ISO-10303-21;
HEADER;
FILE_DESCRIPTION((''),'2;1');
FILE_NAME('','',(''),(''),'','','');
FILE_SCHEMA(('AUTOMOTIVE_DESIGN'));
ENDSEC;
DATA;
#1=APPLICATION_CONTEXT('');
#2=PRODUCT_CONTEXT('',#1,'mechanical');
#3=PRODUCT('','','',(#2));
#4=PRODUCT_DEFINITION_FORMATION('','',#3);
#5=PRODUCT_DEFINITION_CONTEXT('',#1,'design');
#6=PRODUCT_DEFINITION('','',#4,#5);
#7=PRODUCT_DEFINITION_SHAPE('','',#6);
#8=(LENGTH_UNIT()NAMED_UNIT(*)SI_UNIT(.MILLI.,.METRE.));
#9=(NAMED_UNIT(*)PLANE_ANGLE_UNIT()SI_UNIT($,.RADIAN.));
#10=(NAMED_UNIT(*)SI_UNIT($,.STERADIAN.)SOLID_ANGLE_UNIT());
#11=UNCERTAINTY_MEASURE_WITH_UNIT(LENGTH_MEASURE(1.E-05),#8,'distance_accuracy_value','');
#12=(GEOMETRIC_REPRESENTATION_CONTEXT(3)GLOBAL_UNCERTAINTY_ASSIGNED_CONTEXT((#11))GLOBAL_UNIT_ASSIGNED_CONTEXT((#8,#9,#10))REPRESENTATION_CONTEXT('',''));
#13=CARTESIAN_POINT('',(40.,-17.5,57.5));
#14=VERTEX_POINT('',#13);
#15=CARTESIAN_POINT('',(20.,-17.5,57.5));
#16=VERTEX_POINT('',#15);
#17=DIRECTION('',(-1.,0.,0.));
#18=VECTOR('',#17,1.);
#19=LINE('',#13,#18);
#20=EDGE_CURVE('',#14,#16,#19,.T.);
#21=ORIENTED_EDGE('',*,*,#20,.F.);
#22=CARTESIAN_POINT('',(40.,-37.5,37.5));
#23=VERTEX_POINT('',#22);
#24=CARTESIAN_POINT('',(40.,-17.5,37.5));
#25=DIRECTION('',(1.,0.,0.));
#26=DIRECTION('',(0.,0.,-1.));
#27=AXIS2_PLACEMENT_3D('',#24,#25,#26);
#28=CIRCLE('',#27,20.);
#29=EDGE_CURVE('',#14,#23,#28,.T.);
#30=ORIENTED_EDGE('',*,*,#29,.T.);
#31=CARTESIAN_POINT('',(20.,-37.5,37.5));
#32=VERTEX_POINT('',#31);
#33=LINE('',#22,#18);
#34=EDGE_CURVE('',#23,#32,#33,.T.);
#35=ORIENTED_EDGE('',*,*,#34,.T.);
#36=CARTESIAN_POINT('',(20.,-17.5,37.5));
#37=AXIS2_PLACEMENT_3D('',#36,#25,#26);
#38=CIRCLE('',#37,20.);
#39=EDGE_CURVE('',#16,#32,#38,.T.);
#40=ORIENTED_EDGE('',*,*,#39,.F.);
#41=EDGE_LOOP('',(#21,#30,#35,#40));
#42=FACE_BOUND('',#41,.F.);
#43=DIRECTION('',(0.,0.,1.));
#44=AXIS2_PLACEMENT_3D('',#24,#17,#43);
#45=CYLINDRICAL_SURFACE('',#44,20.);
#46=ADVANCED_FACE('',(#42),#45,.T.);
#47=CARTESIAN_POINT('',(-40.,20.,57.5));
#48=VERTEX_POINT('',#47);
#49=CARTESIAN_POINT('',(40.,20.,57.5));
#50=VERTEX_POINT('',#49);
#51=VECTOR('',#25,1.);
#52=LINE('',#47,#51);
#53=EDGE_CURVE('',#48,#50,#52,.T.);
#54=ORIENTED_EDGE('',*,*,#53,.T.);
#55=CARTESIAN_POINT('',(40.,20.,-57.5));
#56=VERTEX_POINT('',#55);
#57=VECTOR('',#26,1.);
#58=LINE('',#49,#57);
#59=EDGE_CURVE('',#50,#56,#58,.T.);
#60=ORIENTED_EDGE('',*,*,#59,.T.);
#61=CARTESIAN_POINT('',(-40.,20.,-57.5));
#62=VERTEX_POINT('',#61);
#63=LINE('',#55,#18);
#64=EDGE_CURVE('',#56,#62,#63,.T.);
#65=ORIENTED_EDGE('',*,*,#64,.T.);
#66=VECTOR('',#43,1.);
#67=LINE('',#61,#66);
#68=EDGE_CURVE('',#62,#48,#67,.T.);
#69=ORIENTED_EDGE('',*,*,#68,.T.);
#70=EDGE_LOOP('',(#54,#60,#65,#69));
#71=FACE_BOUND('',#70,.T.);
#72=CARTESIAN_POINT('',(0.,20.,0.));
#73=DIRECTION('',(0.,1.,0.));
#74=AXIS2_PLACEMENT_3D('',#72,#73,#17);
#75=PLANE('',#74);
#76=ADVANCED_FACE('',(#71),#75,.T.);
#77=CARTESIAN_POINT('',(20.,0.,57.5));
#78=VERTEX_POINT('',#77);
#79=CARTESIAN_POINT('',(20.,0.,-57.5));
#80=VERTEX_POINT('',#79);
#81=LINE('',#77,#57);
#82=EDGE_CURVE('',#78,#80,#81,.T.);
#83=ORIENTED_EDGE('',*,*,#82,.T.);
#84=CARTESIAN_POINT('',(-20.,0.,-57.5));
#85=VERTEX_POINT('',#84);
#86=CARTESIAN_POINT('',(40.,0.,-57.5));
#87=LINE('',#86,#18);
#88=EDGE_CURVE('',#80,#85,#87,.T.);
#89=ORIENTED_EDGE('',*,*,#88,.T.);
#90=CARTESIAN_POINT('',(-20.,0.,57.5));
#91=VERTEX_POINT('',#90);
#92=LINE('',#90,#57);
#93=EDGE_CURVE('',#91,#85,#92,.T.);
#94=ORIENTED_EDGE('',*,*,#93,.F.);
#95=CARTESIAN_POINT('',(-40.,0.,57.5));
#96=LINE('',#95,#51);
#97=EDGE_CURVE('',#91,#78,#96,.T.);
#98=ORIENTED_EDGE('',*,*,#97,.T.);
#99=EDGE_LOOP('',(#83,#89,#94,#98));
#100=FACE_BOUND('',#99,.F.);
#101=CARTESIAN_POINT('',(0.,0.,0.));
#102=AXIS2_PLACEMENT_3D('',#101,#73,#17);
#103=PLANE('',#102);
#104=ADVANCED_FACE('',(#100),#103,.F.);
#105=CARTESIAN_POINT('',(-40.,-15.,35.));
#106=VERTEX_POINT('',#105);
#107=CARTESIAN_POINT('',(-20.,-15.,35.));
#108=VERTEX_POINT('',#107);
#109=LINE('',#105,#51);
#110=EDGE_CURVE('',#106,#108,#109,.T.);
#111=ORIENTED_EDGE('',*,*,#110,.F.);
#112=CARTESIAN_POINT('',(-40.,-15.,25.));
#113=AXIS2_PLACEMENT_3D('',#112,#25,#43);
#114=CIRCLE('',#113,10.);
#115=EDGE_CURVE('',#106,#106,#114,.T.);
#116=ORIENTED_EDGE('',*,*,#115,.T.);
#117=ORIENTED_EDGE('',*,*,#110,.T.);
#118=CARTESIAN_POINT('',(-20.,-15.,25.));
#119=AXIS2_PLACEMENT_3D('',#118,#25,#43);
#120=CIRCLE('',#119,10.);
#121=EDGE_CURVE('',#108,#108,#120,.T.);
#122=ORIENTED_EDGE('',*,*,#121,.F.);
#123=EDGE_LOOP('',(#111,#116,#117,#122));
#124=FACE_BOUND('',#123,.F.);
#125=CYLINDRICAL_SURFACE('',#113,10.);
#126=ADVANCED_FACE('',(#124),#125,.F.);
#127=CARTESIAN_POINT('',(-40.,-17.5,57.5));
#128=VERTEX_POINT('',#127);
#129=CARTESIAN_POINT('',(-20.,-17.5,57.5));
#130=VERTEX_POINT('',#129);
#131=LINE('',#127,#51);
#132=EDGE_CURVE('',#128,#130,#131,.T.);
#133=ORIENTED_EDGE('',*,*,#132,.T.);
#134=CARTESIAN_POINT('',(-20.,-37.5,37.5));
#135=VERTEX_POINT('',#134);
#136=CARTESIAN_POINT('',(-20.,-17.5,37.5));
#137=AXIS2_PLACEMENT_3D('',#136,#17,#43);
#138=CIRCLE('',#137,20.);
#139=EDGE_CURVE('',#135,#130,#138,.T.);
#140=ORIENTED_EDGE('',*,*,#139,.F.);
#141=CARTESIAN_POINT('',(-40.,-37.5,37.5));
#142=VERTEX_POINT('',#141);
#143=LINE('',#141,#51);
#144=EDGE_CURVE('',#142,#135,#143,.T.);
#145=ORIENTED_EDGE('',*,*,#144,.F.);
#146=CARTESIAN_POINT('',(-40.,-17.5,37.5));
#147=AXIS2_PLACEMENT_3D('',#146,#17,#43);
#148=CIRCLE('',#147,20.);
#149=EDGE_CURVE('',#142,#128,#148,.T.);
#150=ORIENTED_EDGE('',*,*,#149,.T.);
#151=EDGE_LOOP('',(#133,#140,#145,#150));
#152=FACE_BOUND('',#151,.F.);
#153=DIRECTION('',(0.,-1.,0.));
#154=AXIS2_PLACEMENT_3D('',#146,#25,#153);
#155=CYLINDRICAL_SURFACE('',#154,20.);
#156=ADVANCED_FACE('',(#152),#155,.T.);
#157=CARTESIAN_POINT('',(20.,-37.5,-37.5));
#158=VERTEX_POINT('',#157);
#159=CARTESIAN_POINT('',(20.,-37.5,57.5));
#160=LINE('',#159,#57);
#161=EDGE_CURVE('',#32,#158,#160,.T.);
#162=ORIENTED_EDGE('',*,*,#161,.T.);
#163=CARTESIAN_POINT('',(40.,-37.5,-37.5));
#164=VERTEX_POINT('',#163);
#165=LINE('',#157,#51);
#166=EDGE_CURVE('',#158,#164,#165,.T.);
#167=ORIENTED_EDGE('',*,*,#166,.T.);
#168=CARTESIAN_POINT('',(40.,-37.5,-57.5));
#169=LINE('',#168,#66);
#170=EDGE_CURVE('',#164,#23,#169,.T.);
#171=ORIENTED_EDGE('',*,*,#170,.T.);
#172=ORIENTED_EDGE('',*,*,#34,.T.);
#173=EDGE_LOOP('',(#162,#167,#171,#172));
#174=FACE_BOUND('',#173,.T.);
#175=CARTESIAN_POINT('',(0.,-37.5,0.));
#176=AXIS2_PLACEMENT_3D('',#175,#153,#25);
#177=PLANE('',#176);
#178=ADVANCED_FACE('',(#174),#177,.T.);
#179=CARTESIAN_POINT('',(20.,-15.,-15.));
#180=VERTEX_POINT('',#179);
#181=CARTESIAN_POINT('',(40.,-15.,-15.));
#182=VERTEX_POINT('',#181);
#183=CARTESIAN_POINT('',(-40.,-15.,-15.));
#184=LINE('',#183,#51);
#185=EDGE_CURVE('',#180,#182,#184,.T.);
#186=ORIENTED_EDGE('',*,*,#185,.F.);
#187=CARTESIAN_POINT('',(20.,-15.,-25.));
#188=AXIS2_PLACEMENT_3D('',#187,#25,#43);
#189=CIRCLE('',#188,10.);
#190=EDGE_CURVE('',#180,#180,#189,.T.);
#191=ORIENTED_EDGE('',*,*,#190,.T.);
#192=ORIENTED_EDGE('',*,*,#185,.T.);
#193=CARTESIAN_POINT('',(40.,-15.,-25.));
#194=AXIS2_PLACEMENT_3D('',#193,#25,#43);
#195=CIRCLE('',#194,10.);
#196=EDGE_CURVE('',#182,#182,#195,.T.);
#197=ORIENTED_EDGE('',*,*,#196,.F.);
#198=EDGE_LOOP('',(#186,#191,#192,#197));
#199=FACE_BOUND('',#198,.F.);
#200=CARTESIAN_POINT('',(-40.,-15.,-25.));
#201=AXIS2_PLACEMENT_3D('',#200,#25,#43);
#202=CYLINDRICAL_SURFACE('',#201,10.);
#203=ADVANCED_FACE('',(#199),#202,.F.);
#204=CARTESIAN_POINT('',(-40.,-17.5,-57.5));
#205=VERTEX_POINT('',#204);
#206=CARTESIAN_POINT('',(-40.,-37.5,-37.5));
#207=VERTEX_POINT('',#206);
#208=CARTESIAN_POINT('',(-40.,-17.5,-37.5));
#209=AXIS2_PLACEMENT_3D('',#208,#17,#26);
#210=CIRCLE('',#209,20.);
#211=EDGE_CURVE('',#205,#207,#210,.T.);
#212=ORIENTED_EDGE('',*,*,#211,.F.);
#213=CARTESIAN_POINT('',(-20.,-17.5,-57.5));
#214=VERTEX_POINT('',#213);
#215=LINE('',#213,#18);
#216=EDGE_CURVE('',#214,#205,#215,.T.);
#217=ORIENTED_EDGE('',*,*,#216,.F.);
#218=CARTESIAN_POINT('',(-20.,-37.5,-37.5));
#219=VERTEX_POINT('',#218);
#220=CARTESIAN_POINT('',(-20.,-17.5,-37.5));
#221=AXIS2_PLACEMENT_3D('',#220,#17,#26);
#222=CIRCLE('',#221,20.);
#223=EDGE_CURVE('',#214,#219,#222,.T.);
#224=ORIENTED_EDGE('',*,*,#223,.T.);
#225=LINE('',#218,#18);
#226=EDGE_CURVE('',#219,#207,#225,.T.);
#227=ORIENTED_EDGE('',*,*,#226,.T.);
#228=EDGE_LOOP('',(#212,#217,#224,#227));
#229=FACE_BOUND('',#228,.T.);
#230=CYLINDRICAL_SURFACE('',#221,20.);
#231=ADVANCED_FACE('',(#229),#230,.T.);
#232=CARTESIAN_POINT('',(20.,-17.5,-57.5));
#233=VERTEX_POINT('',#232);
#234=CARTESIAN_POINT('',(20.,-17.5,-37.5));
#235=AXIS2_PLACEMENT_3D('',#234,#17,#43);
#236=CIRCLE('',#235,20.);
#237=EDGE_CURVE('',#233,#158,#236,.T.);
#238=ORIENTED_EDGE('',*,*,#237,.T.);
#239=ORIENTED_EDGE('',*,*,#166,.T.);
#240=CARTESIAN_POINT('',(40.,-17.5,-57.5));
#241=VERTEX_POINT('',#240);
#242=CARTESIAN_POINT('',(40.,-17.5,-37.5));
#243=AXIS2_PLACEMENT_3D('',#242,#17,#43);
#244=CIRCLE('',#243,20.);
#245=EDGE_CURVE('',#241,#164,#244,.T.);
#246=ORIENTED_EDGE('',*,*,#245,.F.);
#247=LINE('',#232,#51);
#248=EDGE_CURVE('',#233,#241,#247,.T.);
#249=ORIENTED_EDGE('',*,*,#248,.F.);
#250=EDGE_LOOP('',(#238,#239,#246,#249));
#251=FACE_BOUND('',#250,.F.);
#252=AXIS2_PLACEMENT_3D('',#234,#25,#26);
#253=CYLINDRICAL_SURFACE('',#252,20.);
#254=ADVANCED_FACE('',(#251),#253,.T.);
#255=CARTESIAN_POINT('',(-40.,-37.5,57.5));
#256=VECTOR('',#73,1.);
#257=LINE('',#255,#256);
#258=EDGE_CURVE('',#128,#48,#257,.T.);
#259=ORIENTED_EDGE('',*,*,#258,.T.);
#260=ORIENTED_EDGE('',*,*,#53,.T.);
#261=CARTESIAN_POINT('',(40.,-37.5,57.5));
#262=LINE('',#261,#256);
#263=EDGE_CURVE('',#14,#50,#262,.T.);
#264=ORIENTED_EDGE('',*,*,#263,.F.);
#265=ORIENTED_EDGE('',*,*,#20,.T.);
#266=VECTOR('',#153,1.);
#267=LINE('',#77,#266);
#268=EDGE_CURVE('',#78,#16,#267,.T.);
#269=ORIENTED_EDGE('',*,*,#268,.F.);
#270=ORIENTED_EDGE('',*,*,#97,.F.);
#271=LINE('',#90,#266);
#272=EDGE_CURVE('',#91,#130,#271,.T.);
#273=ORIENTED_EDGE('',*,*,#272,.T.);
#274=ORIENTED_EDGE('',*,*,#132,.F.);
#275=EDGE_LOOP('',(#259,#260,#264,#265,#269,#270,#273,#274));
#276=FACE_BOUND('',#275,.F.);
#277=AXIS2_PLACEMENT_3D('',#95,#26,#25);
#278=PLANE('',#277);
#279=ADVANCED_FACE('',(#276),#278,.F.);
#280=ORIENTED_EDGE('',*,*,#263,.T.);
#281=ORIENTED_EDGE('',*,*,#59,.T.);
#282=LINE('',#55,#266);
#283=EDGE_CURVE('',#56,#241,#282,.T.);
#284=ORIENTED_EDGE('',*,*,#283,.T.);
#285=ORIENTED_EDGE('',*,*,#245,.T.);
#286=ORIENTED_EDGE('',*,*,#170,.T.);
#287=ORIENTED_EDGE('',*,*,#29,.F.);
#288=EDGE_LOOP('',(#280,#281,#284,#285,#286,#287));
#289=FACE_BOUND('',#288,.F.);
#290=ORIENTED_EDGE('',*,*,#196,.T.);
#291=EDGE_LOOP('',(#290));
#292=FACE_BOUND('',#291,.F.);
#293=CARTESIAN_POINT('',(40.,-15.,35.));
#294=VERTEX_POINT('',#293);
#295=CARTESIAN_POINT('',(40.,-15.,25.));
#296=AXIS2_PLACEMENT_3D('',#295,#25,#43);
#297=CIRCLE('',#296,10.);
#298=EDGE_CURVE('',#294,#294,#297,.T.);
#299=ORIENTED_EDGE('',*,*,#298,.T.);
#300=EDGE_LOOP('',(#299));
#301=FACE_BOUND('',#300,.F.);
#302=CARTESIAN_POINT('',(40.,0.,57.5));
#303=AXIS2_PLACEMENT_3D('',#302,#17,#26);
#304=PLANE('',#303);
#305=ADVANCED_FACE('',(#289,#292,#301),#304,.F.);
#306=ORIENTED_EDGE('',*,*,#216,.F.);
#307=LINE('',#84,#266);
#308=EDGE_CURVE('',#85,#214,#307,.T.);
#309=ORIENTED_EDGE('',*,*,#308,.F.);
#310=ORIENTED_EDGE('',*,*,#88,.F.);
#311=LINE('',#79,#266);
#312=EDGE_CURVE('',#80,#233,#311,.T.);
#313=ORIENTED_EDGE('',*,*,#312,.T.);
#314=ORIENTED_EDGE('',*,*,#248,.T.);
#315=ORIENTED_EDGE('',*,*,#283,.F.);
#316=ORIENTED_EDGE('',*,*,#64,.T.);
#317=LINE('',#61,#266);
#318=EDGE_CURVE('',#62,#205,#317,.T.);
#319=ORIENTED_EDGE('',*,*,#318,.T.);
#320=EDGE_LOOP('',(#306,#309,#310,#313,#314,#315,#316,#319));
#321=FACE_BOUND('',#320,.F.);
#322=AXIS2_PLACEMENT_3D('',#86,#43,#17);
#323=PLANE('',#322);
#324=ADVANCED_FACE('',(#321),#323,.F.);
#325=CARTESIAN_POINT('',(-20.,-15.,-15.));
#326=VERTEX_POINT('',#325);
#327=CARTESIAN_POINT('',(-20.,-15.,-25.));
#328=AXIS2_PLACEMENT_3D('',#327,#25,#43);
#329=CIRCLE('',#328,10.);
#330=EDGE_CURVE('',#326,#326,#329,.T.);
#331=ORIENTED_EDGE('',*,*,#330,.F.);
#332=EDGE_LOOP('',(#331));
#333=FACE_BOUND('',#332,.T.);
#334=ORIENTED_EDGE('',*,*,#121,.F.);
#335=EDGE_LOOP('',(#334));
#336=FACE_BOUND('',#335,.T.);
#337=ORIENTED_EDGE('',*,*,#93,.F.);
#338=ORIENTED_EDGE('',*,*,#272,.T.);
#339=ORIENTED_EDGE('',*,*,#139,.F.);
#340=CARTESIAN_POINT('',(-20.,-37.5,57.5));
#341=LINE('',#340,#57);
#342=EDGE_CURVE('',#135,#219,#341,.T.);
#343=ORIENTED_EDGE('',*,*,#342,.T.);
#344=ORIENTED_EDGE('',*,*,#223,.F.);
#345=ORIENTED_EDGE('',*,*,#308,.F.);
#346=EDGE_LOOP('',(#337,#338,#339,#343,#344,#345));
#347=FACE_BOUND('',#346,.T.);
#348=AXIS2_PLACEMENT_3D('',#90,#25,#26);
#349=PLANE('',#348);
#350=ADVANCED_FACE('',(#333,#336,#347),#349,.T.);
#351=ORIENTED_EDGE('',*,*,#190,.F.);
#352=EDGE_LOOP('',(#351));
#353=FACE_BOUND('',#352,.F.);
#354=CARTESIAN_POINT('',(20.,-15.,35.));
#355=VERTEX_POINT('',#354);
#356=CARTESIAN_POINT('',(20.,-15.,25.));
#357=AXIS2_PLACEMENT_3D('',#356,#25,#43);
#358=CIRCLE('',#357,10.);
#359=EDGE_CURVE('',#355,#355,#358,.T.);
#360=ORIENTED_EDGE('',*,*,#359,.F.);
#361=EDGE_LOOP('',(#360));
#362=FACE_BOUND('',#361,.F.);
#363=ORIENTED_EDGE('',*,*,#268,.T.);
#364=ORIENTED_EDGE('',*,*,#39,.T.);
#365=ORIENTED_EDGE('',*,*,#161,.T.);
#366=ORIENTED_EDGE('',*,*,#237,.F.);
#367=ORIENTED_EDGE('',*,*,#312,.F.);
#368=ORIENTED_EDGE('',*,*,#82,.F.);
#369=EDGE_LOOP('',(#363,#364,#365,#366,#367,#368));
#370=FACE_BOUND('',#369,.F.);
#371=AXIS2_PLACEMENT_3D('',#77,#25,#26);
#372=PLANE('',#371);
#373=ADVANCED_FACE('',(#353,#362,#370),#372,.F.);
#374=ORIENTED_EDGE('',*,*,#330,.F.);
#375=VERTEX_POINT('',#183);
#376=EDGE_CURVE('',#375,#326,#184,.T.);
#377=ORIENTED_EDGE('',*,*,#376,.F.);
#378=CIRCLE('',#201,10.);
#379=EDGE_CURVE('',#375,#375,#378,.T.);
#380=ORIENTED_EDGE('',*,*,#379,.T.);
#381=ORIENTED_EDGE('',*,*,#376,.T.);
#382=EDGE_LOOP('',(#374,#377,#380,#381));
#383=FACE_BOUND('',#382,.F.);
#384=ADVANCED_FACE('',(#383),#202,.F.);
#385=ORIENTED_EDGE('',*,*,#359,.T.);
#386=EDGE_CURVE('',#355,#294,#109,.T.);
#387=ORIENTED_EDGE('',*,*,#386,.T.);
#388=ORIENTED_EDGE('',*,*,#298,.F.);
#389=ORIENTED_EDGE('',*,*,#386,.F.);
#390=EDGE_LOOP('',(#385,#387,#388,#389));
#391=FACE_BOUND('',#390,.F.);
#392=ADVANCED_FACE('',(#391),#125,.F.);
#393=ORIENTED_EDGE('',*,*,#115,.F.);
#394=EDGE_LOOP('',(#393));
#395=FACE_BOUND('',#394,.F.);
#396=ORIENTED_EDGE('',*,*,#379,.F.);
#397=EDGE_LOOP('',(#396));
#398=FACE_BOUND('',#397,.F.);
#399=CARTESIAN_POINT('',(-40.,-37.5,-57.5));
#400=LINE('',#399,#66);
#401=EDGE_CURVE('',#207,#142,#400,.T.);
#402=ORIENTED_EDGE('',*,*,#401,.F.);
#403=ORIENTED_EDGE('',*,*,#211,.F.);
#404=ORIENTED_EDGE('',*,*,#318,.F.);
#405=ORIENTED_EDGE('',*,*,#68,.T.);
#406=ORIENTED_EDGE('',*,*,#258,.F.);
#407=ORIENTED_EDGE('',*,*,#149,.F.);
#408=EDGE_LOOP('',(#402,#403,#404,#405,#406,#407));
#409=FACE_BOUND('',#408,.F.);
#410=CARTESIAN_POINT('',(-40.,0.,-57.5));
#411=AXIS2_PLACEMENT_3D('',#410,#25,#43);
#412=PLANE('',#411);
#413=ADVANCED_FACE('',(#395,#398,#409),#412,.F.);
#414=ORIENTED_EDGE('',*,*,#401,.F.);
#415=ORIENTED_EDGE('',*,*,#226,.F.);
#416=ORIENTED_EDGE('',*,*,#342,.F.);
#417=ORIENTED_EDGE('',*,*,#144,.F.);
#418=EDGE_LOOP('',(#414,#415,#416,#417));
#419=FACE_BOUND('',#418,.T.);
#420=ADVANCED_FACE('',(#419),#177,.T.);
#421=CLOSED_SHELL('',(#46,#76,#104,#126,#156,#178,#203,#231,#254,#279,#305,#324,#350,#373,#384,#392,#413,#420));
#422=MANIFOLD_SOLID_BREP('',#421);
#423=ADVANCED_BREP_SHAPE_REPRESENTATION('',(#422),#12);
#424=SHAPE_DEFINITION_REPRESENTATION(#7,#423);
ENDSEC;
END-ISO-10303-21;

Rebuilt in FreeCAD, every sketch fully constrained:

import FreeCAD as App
import Part
import Sketcher


def edges_at(feature, points):
    """Names of the edges that pass closest to the given points."""
    edges = feature.Shape.Edges
    near = lambda p: min(range(len(edges)), key=lambda i: edges[i].distToShape(Part.Vertex(*p))[0])
    return sorted({f"Edge{near(p) + 1}" for p in points})

doc = App.newDocument("Part")
params = doc.addObject("Spreadsheet::Sheet", "Params")
for row, (alias, value) in enumerate([
    ("sketch1_width", "80 mm"),
    ("sketch1_height", "115 mm"),
    ("pad1_length", "20 mm"),
    ("sketch2_width", "20 mm"),
    ("sketch2_height", "115 mm"),
    ("pad2_length", "37.5 mm"),
    ("sketch3_diameter", "20 mm"),
    ("hole_diameter", "20 mm"),
    ("fillet_radius", "20 mm"),
], start=1):
    params.set(f"A{row}", alias)
    params.set(f"B{row}", "=" + value)
    params.setAlias(f"B{row}", alias)

body = doc.addObject("PartDesign::Body", "Body")

# Sketch on XZ plane
sketch1 = doc.addObject("Sketcher::SketchObject", "Sketch")
body.addObject(sketch1)
sketch1.AttachmentSupport = (doc.XZ_Plane, [""])
sketch1.MapMode = "FlatFace"
sketch1.addGeometry(Part.LineSegment(App.Vector(-40, -58, 0), App.Vector(-40, 58, 0)), False)
sketch1.addGeometry(Part.LineSegment(App.Vector(-40, 58, 0), App.Vector(40, 58, 0)), False)
sketch1.addGeometry(Part.LineSegment(App.Vector(40, 58, 0), App.Vector(40, -58, 0)), False)
sketch1.addGeometry(Part.LineSegment(App.Vector(40, -58, 0), App.Vector(-40, -58, 0)), False)
sketch1.addConstraint(Sketcher.Constraint("Coincident", 0, 2, 1, 1))
sketch1.addConstraint(Sketcher.Constraint("Coincident", 1, 2, 2, 1))
sketch1.addConstraint(Sketcher.Constraint("Coincident", 2, 2, 3, 1))
sketch1.addConstraint(Sketcher.Constraint("Coincident", 3, 2, 0, 1))
sketch1.addConstraint(Sketcher.Constraint("Vertical", 0))
sketch1.addConstraint(Sketcher.Constraint("Horizontal", 1))
sketch1.addConstraint(Sketcher.Constraint("Vertical", 2))
sketch1.addConstraint(Sketcher.Constraint("Horizontal", 3))
sketch1.addConstraint(Sketcher.Constraint("Symmetric", 0, 2, 2, 2, -1, 1))
sketch1.addConstraint(Sketcher.Constraint("DistanceX", 1, 1, 1, 2, 80.0))
sketch1.addConstraint(Sketcher.Constraint("DistanceY", 0, 1, 0, 2, 115.0))
sketch1.setExpression("Constraints[9]", "Params.sketch1_width")
sketch1.setExpression("Constraints[10]", "Params.sketch1_height")
pad1 = doc.addObject("PartDesign::Pad", "Pad")
body.addObject(pad1)
pad1.Profile = sketch1
pad1.setExpression("Length", "Params.pad1_length")
pad1.Reversed = True

# Sketch on XZ plane
sketch2 = doc.addObject("Sketcher::SketchObject", "Sketch001")
body.addObject(sketch2)
sketch2.AttachmentSupport = (doc.XZ_Plane, [""])
sketch2.MapMode = "FlatFace"
sketch2.addGeometry(Part.LineSegment(App.Vector(-20, 58, 0), App.Vector(-40, 58, 0)), False)
sketch2.addGeometry(Part.LineSegment(App.Vector(-40, 58, 0), App.Vector(-40, -58, 0)), False)
sketch2.addGeometry(Part.LineSegment(App.Vector(-40, -58, 0), App.Vector(-20, -58, 0)), False)
sketch2.addGeometry(Part.LineSegment(App.Vector(-20, -58, 0), App.Vector(-20, 58, 0)), False)
sketch2.addGeometry(Part.LineSegment(App.Vector(40, -58, 0), App.Vector(40, 58, 0)), False)
sketch2.addGeometry(Part.LineSegment(App.Vector(40, 58, 0), App.Vector(20, 58, 0)), False)
sketch2.addGeometry(Part.LineSegment(App.Vector(20, 58, 0), App.Vector(20, -58, 0)), False)
sketch2.addGeometry(Part.LineSegment(App.Vector(20, -58, 0), App.Vector(40, -58, 0)), False)
sketch2.addConstraint(Sketcher.Constraint("Coincident", 0, 2, 1, 1))
sketch2.addConstraint(Sketcher.Constraint("Coincident", 1, 2, 2, 1))
sketch2.addConstraint(Sketcher.Constraint("Coincident", 2, 2, 3, 1))
sketch2.addConstraint(Sketcher.Constraint("Coincident", 3, 2, 0, 1))
sketch2.addConstraint(Sketcher.Constraint("Coincident", 4, 2, 5, 1))
sketch2.addConstraint(Sketcher.Constraint("Coincident", 5, 2, 6, 1))
sketch2.addConstraint(Sketcher.Constraint("Coincident", 6, 2, 7, 1))
sketch2.addConstraint(Sketcher.Constraint("Coincident", 7, 2, 4, 1))
sketch2.addConstraint(Sketcher.Constraint("Horizontal", 0))
sketch2.addConstraint(Sketcher.Constraint("Vertical", 1))
sketch2.addConstraint(Sketcher.Constraint("Horizontal", 2))
sketch2.addConstraint(Sketcher.Constraint("Vertical", 3))
sketch2.addConstraint(Sketcher.Constraint("Vertical", 4))
sketch2.addConstraint(Sketcher.Constraint("Horizontal", 5))
sketch2.addConstraint(Sketcher.Constraint("Vertical", 6))
sketch2.addConstraint(Sketcher.Constraint("Horizontal", 7))
sketch2.addConstraint(Sketcher.Constraint("Symmetric", 1, 2, 4, 2, -1, 1))
sketch2.addConstraint(Sketcher.Constraint("Symmetric", 3, 2, 6, 2, -1, 1))
sketch2.addConstraint(Sketcher.Constraint("Horizontal", 3, 2, 4, 2))
sketch2.addConstraint(Sketcher.Constraint("DistanceX", 0, 2, 0, 1, 20.0))
sketch2.addConstraint(Sketcher.Constraint("DistanceY", 1, 2, 1, 1, 115.0))
sketch2.addConstraint(Sketcher.Constraint("DistanceX", 2, 2, -1, 1, 20.0))
sketch2.setExpression("Constraints[19]", "Params.sketch2_width")
sketch2.setExpression("Constraints[20]", "Params.sketch2_height")
pad2 = doc.addObject("PartDesign::Pad", "Pad001")
body.addObject(pad2)
pad2.Profile = sketch2
pad2.setExpression("Length", "Params.pad2_length")

# Sketch on YZ plane
sketch3 = doc.addObject("Sketcher::SketchObject", "Sketch002")
body.addObject(sketch3)
sketch3.AttachmentSupport = (doc.YZ_Plane, [""])
sketch3.MapMode = "FlatFace"
sketch3.AttachmentOffset = App.Placement(App.Vector(0, 0, -40), App.Rotation())
sketch3.addGeometry(Part.Circle(App.Vector(-15, 25, 0), App.Vector(0, 0, 1), 10), False)
sketch3.addGeometry(Part.Circle(App.Vector(-15, -25, 0), App.Vector(0, 0, 1), 10), False)
sketch3.addConstraint(Sketcher.Constraint("Equal", 0, 1))
sketch3.addConstraint(Sketcher.Constraint("Symmetric", 0, 3, 1, 3, -1))
sketch3.addConstraint(Sketcher.Constraint("Diameter", 0, 20.0))
sketch3.addConstraint(Sketcher.Constraint("DistanceX", 0, 3, -1, 1, 15.0))
sketch3.addConstraint(Sketcher.Constraint("DistanceY", -1, 1, 0, 3, 25.0))
sketch3.setExpression("Constraints[2]", "Params.sketch3_diameter")
doc.recompute()
hole = doc.addObject("PartDesign::Hole", "Hole")
body.addObject(hole)
hole.Profile = sketch3
hole.ThreadType = "None"
hole.setExpression("Diameter", "Params.hole_diameter")
hole.DepthType = "ThroughAll"
hole.Reversed = True
doc.recompute()

fillet = doc.addObject("PartDesign::Fillet", "Fillet")
body.addObject(fillet)
fillet.Base = (hole, edges_at(hole, [
    (-30, -37.5, -57.5),
    (30, -37.5, -57.5),
    (30, -37.5, 57.5),
    (-30, -37.5, 57.5),
]))
fillet.setExpression("Radius", "Params.fillet_radius")

doc.recompute()
